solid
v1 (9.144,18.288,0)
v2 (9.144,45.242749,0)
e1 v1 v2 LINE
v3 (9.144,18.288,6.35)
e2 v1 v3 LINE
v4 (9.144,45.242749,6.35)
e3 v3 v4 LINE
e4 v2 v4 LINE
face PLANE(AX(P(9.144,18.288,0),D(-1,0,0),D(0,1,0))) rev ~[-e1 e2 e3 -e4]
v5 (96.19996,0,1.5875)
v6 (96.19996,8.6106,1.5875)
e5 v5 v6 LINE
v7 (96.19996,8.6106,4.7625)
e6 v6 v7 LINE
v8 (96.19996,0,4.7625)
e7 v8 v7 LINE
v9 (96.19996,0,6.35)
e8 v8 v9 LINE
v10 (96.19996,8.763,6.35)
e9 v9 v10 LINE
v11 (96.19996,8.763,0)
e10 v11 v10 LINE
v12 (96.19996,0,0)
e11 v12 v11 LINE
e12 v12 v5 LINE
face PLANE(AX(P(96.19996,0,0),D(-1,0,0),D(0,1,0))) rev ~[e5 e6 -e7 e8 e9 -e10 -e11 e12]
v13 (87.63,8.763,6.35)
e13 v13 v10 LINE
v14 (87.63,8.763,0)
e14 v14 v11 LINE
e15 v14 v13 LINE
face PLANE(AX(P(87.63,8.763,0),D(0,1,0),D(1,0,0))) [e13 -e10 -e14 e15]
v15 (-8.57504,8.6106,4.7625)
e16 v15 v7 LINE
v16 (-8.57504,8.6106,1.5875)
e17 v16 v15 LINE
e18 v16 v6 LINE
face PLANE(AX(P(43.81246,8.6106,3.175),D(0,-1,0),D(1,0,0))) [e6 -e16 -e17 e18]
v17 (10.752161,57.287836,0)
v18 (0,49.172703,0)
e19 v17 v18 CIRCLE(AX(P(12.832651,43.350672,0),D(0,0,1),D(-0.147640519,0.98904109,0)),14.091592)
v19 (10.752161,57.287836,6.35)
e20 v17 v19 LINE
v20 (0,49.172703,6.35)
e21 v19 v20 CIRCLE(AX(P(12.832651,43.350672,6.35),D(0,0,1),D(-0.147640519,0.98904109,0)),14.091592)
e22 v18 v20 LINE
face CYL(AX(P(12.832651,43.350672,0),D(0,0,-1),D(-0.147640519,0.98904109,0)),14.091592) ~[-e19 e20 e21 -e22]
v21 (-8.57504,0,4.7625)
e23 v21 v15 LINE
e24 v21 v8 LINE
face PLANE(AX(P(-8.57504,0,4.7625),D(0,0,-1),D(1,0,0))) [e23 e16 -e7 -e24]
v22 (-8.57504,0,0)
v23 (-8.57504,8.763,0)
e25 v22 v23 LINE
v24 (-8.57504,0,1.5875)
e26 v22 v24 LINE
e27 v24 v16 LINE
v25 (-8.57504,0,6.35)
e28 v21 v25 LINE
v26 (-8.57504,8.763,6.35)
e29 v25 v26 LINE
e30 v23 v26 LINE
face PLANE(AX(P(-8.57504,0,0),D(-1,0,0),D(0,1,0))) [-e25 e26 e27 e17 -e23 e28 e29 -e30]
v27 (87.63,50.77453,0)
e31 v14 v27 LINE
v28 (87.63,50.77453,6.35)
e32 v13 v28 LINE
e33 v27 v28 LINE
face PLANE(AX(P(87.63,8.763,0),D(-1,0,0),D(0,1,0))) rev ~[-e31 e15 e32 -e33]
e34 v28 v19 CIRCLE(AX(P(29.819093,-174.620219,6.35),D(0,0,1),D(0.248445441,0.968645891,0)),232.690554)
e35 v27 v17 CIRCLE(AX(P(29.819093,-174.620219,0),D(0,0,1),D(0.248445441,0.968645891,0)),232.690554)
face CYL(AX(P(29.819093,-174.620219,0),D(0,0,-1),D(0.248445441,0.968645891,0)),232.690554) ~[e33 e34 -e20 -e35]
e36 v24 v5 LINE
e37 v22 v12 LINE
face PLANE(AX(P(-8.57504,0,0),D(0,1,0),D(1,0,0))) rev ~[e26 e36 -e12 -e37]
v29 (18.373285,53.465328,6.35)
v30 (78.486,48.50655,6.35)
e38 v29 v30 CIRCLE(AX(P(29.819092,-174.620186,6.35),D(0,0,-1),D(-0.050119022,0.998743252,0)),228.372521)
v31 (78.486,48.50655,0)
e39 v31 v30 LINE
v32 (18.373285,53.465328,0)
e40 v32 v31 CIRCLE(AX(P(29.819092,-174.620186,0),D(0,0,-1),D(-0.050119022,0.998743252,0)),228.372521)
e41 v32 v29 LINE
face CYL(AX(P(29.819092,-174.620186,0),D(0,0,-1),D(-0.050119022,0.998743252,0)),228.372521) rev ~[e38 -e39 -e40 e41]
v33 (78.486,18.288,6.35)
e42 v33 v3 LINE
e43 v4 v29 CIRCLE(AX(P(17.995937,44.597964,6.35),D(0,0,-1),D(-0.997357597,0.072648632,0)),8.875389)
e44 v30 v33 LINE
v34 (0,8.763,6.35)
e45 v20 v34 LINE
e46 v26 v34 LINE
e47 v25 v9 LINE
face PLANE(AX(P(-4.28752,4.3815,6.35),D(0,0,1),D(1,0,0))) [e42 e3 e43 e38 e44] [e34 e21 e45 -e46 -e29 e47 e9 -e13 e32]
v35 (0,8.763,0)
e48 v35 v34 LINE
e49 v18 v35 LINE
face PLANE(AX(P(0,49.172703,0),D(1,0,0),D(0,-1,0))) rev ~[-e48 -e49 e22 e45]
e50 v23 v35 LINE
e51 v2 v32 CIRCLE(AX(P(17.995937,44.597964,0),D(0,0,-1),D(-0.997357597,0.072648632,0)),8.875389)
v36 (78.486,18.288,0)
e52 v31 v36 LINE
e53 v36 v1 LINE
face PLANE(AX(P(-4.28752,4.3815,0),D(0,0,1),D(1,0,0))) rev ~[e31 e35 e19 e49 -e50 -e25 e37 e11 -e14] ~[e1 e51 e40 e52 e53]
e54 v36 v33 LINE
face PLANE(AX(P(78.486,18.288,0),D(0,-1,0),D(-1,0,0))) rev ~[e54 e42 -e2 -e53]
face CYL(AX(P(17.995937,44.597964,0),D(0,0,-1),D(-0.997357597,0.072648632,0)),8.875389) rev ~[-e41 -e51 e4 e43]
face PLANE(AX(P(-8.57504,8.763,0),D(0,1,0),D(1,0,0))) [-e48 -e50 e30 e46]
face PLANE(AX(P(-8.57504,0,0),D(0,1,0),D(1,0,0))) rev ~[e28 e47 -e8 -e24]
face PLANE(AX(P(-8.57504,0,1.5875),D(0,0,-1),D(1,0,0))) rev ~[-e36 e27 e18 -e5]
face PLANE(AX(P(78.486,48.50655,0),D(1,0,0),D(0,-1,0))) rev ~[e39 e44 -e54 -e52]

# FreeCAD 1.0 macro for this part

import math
import FreeCAD as App
import Part
import Sketcher

V = App.Vector
Q = App.Units.Quantity

doc = App.newDocument("Part")
body = doc.addObject("PartDesign::Body", "Body")

# Sketch on XY plane
sketch1 = body.newObject("Sketcher::SketchObject", "Sketch")
sketch1.AttachmentSupport = (doc.getObject("XY_Plane"), [""])
sketch1.MapMode = "FlatFace"
sketch1.addGeometry([
    Part.LineSegment(V(-8.57504, 8.763, 0), V(-8.57504, 0, 0)),  # 0
    Part.LineSegment(V(-8.57504, 0, 0), V(96.19996, 0, 0)),  # 1
    Part.LineSegment(V(96.19996, 0, 0), V(96.19996, 8.763, 0)),  # 2
    Part.LineSegment(V(96.19996, 8.763, 0), V(87.63, 8.763, 0)),  # 3
    Part.LineSegment(V(87.63, 8.763, 0), V(87.63, 50.77453, 0)),  # 4
    Part.ArcOfCircle(Part.Circle(V(29.819093, -174.620219, 0), V(0, 0, 1), 232.690554), math.radians(75.61446), math.radians(94.700152)),  # 5
    Part.ArcOfCircle(Part.Circle(V(12.832651, 43.350672, 0), V(0, 0, 1), 14.091592), math.radians(98.490216), math.radians(155.596733)),  # 6
    Part.LineSegment(V(0, 49.172703, 0), V(0, 8.763, 0)),  # 7
    Part.LineSegment(V(0, 8.763, 0), V(-8.57504, 8.763, 0)),  # 8
    Part.LineSegment(V(78.486, 48.50655, 0), V(78.486, 18.288, 0)),  # 9
    Part.LineSegment(V(78.486, 18.288, 0), V(9.144, 18.288, 0)),  # 10
    Part.LineSegment(V(9.144, 18.288, 0), V(9.144, 45.242749, 0)),  # 11
    Part.ArcOfCircle(Part.Circle(V(17.995937, 44.597964, 0), V(0, 0, 1), 8.875389), math.radians(87.563265), math.radians(175.83387)),  # 12
    Part.ArcOfCircle(Part.Circle(V(29.819092, -174.620186, 0), V(0, 0, 1), 228.372521), math.radians(77.695732), math.radians(92.872812)),  # 13
], False)
sketch1.addConstraint([
    Sketcher.Constraint("Coincident", 0, 2, 1, 1),
    Sketcher.Constraint("Coincident", 1, 2, 2, 1),
    Sketcher.Constraint("Coincident", 2, 2, 3, 1),
    Sketcher.Constraint("Coincident", 3, 2, 4, 1),
    Sketcher.Constraint("Coincident", 4, 2, 5, 1),
    Sketcher.Constraint("Coincident", 5, 2, 6, 1),
    Sketcher.Constraint("Coincident", 6, 2, 7, 1),
    Sketcher.Constraint("Coincident", 7, 2, 8, 1),
    Sketcher.Constraint("Coincident", 8, 2, 0, 1),
    Sketcher.Constraint("Coincident", 9, 2, 10, 1),
    Sketcher.Constraint("Coincident", 10, 2, 11, 1),
    Sketcher.Constraint("Coincident", 11, 2, 12, 2),
    Sketcher.Constraint("Coincident", 12, 1, 13, 2),
    Sketcher.Constraint("Coincident", 13, 1, 9, 1),
    Sketcher.Constraint("Vertical", 0),
    Sketcher.Constraint("Horizontal", 1),
    Sketcher.Constraint("Vertical", 2),
    Sketcher.Constraint("Horizontal", 3),
    Sketcher.Constraint("Vertical", 4),
    Sketcher.Constraint("Vertical", 7),
    Sketcher.Constraint("Horizontal", 8),
    Sketcher.Constraint("Vertical", 9),
    Sketcher.Constraint("Horizontal", 10),
    Sketcher.Constraint("Vertical", 11),
    Sketcher.Constraint("PointOnObject", 0, 2, -1),
    Sketcher.Constraint("PointOnObject", 6, 2, -2),
    Sketcher.Constraint("Horizontal", 3, 2, 7, 2),
    Sketcher.Constraint("Vertical", 5, 3, 13, 3),
    Sketcher.Constraint("DistanceX", 10, 2, 10, 1, Q("2.73 in")),
    Sketcher.Constraint("DistanceX", 1, 1, 1, 2, Q("4.125 in")),
    Sketcher.Constraint("DistanceY", 0, 2, 0, 1, Q("0.345 in")),
    Sketcher.Constraint("DistanceX", -1, 1, 3, 2, Q("3.45 in")),
    Sketcher.Constraint("DistanceX", -1, 1, 9, 2, Q("3.09 in")),
    Sketcher.Constraint("DistanceY", -1, 1, 9, 2, Q("0.72 in")),
    Sketcher.Constraint("DistanceX", 3, 2, 3, 1, Q("0.3374 in")),
    Sketcher.Constraint("Radius", 12, Q("8.875389 mm")),
    Sketcher.Constraint("Radius", 13, Q("228.372521 mm")),
    Sketcher.Constraint("Radius", 5, Q("232.690554 mm")),
    Sketcher.Constraint("Radius", 6, Q("14.091592 mm")),
    Sketcher.Constraint("DistanceY", 4, 1, 4, 2, Q("42.01153 mm")),
    Sketcher.Constraint("DistanceY", 9, 2, 9, 1, Q("30.21855 mm")),
    Sketcher.Constraint("DistanceY", 11, 1, 11, 2, Q("26.954749 mm")),
    Sketcher.Constraint("DistanceX", 0, 2, 5, 2, Q("19.327201 mm")),
    Sketcher.Constraint("DistanceY", 7, 2, 7, 1, Q("40.409703 mm")),
    Sketcher.Constraint("DistanceY", 5, 3, -1, 1, Q("174.620219 mm")),
    Sketcher.Constraint("DistanceY", 6, 3, 12, 3, Q("1.247292 mm")),
])
pad1 = body.newObject("PartDesign::Pad", "Pad")
pad1.Profile = sketch1
pad1.Length = Q("0.25 in")

# Sketch on XZ plane
sketch2 = body.newObject("Sketcher::SketchObject", "Sketch001")
sketch2.AttachmentSupport = (doc.getObject("XZ_Plane"), [""])
sketch2.MapMode = "FlatFace"
sketch2.addGeometry([
    Part.LineSegment(V(-8.57504, 4.7625, 0), V(-8.57504, 1.5875, 0)),
    Part.LineSegment(V(-8.57504, 1.5875, 0), V(96.19996, 1.5875, 0)),
    Part.LineSegment(V(96.19996, 1.5875, 0), V(96.19996, 4.7625, 0)),
    Part.LineSegment(V(96.19996, 4.7625, 0), V(-8.57504, 4.7625, 0)),
], False)
sketch2.addConstraint([
    Sketcher.Constraint("Coincident", 0, 2, 1, 1),
    Sketcher.Constraint("Coincident", 1, 2, 2, 1),
    Sketcher.Constraint("Coincident", 2, 2, 3, 1),
    Sketcher.Constraint("Coincident", 3, 2, 0, 1),
    Sketcher.Constraint("Vertical", 0),
    Sketcher.Constraint("Horizontal", 1),
    Sketcher.Constraint("Vertical", 2),
    Sketcher.Constraint("Horizontal", 3),
    Sketcher.Constraint("DistanceX", 1, 1, 1, 2, Q("4.125 in")),
    Sketcher.Constraint("DistanceY", 0, 2, 0, 1, Q("0.125 in")),
    Sketcher.Constraint("DistanceY", -1, 1, 0, 2, Q("0.0625 in")),
    Sketcher.Constraint("DistanceX", 0, 2, -1, 1, Q("0.3376 in")),
])
pocket1 = body.newObject("PartDesign::Pocket", "Pocket")
pocket1.Profile = sketch2
pocket1.Length = Q("0.339 in")

doc.recompute()
